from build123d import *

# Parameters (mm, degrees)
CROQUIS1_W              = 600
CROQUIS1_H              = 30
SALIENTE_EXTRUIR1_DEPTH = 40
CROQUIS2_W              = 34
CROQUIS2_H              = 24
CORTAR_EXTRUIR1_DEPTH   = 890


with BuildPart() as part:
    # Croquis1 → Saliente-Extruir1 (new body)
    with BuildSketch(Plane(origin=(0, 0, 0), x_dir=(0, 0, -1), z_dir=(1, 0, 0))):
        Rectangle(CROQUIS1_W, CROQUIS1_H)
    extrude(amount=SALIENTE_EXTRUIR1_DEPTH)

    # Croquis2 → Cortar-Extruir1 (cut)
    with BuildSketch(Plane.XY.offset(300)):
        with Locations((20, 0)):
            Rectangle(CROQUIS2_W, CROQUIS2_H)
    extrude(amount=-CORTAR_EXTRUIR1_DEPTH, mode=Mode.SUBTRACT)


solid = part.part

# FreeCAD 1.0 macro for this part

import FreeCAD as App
import Part
import Sketcher

V = App.Vector

doc = App.newDocument("Part")
body = doc.addObject("PartDesign::Body", "Body")

sketch1 = body.newObject("Sketcher::SketchObject", "Sketch")
sketch1.AttachmentSupport = (doc.getObject("YZ_Plane"), [""])
sketch1.MapMode = "FlatFace"
sketch1.addGeometry(Part.LineSegment(V(15, 300, 0), V(-15, 300, 0)), False)
sketch1.addGeometry(Part.LineSegment(V(-15, 300, 0), V(-15, -300, 0)), False)
sketch1.addGeometry(Part.LineSegment(V(-15, -300, 0), V(15, -300, 0)), False)
sketch1.addGeometry(Part.LineSegment(V(15, -300, 0), V(15, 300, 0)), False)
sketch1.addConstraint(Sketcher.Constraint("Coincident", 0, 2, 1, 1))
sketch1.addConstraint(Sketcher.Constraint("Coincident", 1, 2, 2, 1))
sketch1.addConstraint(Sketcher.Constraint("Coincident", 2, 2, 3, 1))
sketch1.addConstraint(Sketcher.Constraint("Coincident", 3, 2, 0, 1))
sketch1.addConstraint(Sketcher.Constraint("Horizontal", 0))
sketch1.addConstraint(Sketcher.Constraint("Vertical", 1))
sketch1.addConstraint(Sketcher.Constraint("Horizontal", 2))
sketch1.addConstraint(Sketcher.Constraint("Vertical", 3))
sketch1.addConstraint(Sketcher.Constraint("Symmetric", 0, 2, 2, 2, -1, 1))
sketch1.addConstraint(Sketcher.Constraint("DistanceX", 0, 2, 0, 1, 30.0))
sketch1.addConstraint(Sketcher.Constraint("DistanceY", 1, 2, 1, 1, 600.0))
pad1 = body.newObject("PartDesign::Pad", "Pad")
pad1.Profile = sketch1
pad1.Length = 40

sketch2 = body.newObject("Sketcher::SketchObject", "Sketch001")
sketch2.AttachmentSupport = (doc.getObject("XY_Plane"), [""])
sketch2.MapMode = "FlatFace"
sketch2.AttachmentOffset = App.Placement(V(0, 0, 300), App.Rotation())
sketch2.addGeometry(Part.LineSegment(V(3, 12, 0), V(3, -12, 0)), False)
sketch2.addGeometry(Part.LineSegment(V(3, -12, 0), V(37, -12, 0)), False)
sketch2.addGeometry(Part.LineSegment(V(37, -12, 0), V(37, 12, 0)), False)
sketch2.addGeometry(Part.LineSegment(V(37, 12, 0), V(3, 12, 0)), False)
sketch2.addConstraint(Sketcher.Constraint("Coincident", 0, 2, 1, 1))
sketch2.addConstraint(Sketcher.Constraint("Coincident", 1, 2, 2, 1))
sketch2.addConstraint(Sketcher.Constraint("Coincident", 2, 2, 3, 1))
sketch2.addConstraint(Sketcher.Constraint("Coincident", 3, 2, 0, 1))
sketch2.addConstraint(Sketcher.Constraint("Vertical", 0))
sketch2.addConstraint(Sketcher.Constraint("Horizontal", 1))
sketch2.addConstraint(Sketcher.Constraint("Vertical", 2))
sketch2.addConstraint(Sketcher.Constraint("Horizontal", 3))
sketch2.addConstraint(Sketcher.Constraint("DistanceX", 1, 1, 1, 2, 34.0))
sketch2.addConstraint(Sketcher.Constraint("DistanceY", 0, 2, 0, 1, 24.0))
sketch2.addConstraint(Sketcher.Constraint("DistanceX", -1, 1, 0, 2, 3.0))
sketch2.addConstraint(Sketcher.Constraint("DistanceY", 0, 2, -1, 1, 12.0))
pocket1 = body.newObject("PartDesign::Pocket", "Pocket")
pocket1.Profile = sketch2
pocket1.Length = 890

doc.recompute()
